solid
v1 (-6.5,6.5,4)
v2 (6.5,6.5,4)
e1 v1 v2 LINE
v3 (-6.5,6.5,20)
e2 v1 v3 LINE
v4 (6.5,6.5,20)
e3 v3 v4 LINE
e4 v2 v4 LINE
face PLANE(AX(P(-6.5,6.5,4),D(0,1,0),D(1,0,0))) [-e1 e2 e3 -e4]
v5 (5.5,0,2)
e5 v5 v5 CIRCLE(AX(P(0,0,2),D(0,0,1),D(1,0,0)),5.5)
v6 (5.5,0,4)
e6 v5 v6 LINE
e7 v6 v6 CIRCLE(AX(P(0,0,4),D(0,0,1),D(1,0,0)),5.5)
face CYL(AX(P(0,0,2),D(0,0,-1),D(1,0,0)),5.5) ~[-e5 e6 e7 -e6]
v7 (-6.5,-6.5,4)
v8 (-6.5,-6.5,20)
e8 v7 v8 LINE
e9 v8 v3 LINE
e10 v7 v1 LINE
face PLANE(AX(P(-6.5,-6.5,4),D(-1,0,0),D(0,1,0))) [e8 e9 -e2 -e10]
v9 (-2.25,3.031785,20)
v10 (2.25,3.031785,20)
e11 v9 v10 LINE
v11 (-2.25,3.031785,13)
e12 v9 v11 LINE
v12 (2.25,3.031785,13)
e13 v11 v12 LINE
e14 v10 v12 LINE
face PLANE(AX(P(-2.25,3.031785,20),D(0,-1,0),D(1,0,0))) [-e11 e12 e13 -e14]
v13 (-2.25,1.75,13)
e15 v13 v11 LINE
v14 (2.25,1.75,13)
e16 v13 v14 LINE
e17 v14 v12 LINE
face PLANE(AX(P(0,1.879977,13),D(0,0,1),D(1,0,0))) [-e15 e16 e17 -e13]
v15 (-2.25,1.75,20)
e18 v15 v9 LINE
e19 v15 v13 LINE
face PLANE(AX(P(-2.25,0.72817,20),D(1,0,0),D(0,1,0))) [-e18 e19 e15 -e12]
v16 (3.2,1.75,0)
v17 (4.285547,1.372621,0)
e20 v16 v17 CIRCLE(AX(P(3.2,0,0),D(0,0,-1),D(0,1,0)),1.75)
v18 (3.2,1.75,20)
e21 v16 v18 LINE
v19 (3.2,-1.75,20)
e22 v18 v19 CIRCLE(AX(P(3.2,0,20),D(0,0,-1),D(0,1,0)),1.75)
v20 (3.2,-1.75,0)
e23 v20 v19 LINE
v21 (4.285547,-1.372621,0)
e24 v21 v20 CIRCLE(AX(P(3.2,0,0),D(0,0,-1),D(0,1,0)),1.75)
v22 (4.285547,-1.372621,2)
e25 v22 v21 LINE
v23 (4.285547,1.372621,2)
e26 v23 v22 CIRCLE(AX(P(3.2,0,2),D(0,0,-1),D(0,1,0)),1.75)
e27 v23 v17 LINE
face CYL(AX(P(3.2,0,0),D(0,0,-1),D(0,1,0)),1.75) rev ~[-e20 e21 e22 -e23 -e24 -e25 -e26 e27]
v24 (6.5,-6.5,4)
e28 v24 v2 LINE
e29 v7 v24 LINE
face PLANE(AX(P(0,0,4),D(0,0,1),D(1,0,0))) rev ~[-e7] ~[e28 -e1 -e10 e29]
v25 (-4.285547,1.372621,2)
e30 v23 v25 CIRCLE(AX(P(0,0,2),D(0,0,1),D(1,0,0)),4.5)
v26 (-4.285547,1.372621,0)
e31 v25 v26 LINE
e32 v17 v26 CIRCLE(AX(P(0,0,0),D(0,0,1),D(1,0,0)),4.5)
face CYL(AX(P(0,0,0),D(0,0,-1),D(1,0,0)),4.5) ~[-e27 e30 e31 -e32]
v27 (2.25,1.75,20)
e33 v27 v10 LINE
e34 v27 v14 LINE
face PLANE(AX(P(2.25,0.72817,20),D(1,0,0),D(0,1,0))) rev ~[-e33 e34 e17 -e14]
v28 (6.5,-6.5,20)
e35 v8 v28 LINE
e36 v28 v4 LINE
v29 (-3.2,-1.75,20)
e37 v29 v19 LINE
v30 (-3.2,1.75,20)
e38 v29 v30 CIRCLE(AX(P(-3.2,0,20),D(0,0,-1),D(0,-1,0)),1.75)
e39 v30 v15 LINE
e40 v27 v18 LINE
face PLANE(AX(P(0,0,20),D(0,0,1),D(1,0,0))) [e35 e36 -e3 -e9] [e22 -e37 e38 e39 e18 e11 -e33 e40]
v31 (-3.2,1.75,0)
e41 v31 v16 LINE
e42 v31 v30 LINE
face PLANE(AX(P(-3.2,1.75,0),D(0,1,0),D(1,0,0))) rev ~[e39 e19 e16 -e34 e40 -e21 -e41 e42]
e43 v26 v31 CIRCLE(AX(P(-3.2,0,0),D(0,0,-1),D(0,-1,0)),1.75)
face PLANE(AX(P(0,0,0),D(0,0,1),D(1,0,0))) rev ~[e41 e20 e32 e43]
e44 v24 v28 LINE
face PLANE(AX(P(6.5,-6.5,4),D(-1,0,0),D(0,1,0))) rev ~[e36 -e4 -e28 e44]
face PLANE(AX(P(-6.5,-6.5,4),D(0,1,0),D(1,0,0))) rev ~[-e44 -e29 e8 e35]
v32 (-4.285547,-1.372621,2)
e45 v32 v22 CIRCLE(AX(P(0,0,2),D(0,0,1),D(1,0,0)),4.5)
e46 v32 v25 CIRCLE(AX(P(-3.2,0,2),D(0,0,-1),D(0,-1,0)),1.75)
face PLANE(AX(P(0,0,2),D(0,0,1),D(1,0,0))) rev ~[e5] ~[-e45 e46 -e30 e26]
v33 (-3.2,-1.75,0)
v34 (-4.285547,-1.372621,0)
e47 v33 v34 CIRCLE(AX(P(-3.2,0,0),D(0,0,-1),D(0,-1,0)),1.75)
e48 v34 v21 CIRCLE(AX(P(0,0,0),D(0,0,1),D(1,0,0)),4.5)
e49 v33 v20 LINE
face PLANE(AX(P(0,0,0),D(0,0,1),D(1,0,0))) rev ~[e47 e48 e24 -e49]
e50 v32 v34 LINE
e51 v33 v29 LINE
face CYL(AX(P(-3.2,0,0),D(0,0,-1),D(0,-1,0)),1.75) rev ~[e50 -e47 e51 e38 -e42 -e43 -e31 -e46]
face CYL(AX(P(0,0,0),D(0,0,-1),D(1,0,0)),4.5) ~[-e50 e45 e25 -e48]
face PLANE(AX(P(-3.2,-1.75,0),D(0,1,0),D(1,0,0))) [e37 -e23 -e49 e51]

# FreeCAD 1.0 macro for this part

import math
import FreeCAD as App
import Part
import Sketcher

V = App.Vector
Q = App.Units.Quantity


def add_polygon(sketch, points):
    """Adds a closed chain of lines whose ends are joined by coincident constraints."""
    first, n = sketch.GeometryCount, len(points)
    for a, b in zip(points, points[1:] + points[:1]):
        sketch.addGeometry(Part.LineSegment(App.Vector(*a, 0), App.Vector(*b, 0)), False)
    for i in range(n):
        sketch.addConstraint(Sketcher.Constraint("Coincident", first + i, 2, first + (i + 1) % n, 1))

doc = App.newDocument("Part")
body = doc.addObject("PartDesign::Body", "Body")

sketch1 = body.newObject("Sketcher::SketchObject", "Sketch")
sketch1.AttachmentSupport = (doc.getObject("XY_Plane"), [""])
sketch1.MapMode = "FlatFace"
sketch1.addGeometry(Part.Circle(V(0, 0, 0), V(0, 0, 1), 4.5), False)
sketch1.addConstraint([
    Sketcher.Constraint("Coincident", 0, 3, -1, 1),
    Sketcher.Constraint("Diameter", 0, Q("9 mm")),
])
pad1 = body.newObject("PartDesign::Pad", "Pad")
pad1.Profile = sketch1
pad1.Length = 2

sketch2 = body.newObject("Sketcher::SketchObject", "Sketch001")
sketch2.AttachmentSupport = (doc.getObject("XY_Plane"), [""])
sketch2.MapMode = "FlatFace"
sketch2.AttachmentOffset = App.Placement(V(0, 0, 2), App.Rotation())
sketch2.addGeometry(Part.Circle(V(0, 0, 0), V(0, 0, 1), 6), False)
sketch2.addConstraint([
    Sketcher.Constraint("Coincident", 0, 3, -1, 1),
    Sketcher.Constraint("Diameter", 0, Q("11 mm")),
])
pad2 = body.newObject("PartDesign::Pad", "Pad001")
pad2.Profile = sketch2
pad2.Length = 2

sketch3 = body.newObject("Sketcher::SketchObject", "Sketch002")
sketch3.AttachmentSupport = (doc.getObject("XY_Plane"), [""])
sketch3.MapMode = "FlatFace"
sketch3.AttachmentOffset = App.Placement(V(0, 0, 4), App.Rotation())
add_polygon(sketch3, [(-6, 6), (-6, -6), (6, -6), (6, 6)])
sketch3.addConstraint([
    Sketcher.Constraint("Vertical", 0),
    Sketcher.Constraint("Horizontal", 1),
    Sketcher.Constraint("Vertical", 2),
    Sketcher.Constraint("Horizontal", 3),
    Sketcher.Constraint("Symmetric", 0, 2, 2, 2, -1, 1),
    Sketcher.Constraint("Equal", 3, 0),
    Sketcher.Constraint("DistanceX", 1, 1, 1, 2, Q("13 mm")),
])
pad3 = body.newObject("PartDesign::Pad", "Pad002")
pad3.Profile = sketch3
pad3.Length = 16

sketch4 = body.newObject("Sketcher::SketchObject", "Sketch003")
sketch4.AttachmentSupport = (doc.getObject("XY_Plane"), [""])
sketch4.MapMode = "FlatFace"
sketch4.addGeometry([
    Part.ArcOfCircle(Part.Circle(V(-3.2, 0, 0), V(0, 0, 1), 1.8), math.radians(90), math.radians(270)),
    Part.LineSegment(V(-3.2, 1.8, 0), V(3.2, 1.8, 0)),
    Part.ArcOfCircle(Part.Circle(V(3.2, 0, 0), V(0, 0, 1), 1.8), math.radians(-90), math.radians(90)),
    Part.LineSegment(V(3.2, -1.8, 0), V(-3.2, -1.8, 0)),
], False)
sketch4.addConstraint([
    Sketcher.Constraint("Tangent", 0, 1, 1, 1),
    Sketcher.Constraint("Tangent", 1, 2, 2, 2),
    Sketcher.Constraint("Tangent", 2, 1, 3, 1),
    Sketcher.Constraint("Tangent", 3, 2, 0, 2),
    Sketcher.Constraint("Horizontal", 1),
    Sketcher.Constraint("Horizontal", 3),
    Sketcher.Constraint("Symmetric", 0, 3, 2, 3, -1, 1),
    Sketcher.Constraint("Radius", 0, Q("1.75 mm")),
    Sketcher.Constraint("DistanceX", 1, 1, 1, 2, Q("6.4 mm")),
])
pocket1 = body.newObject("PartDesign::Pocket", "Pocket")
pocket1.Profile = sketch4
pocket1.Length = 20
pocket1.Reversed = True

sketch5 = body.newObject("Sketcher::SketchObject", "Sketch004")
sketch5.AttachmentSupport = (doc.getObject("XY_Plane"), [""])
sketch5.MapMode = "FlatFace"
sketch5.AttachmentOffset = App.Placement(V(0, 0, 20), App.Rotation())
add_polygon(sketch5, [(-2.2, 3), (-2.2, 0.7), (2.2, 0.7), (2.2, 3)])
sketch5.addConstraint([
    Sketcher.Constraint("Vertical", 0),
    Sketcher.Constraint("Horizontal", 1),
    Sketcher.Constraint("Vertical", 2),
    Sketcher.Constraint("Horizontal", 3),
    Sketcher.Constraint("DistanceX", 1, 1, 1, 2, Q("4.5 mm")),
    Sketcher.Constraint("DistanceX", 0, 2, -1, 1, Q("2.25 mm")),
    Sketcher.Constraint("DistanceY", 0, 2, 0, 1, Q("2.303615 mm")),
    Sketcher.Constraint("DistanceY", -1, 1, 0, 2, Q("0.72817 mm")),
])
pocket2 = body.newObject("PartDesign::Pocket", "Pocket001")
pocket2.Profile = sketch5
pocket2.Length = 7

doc.recompute()
